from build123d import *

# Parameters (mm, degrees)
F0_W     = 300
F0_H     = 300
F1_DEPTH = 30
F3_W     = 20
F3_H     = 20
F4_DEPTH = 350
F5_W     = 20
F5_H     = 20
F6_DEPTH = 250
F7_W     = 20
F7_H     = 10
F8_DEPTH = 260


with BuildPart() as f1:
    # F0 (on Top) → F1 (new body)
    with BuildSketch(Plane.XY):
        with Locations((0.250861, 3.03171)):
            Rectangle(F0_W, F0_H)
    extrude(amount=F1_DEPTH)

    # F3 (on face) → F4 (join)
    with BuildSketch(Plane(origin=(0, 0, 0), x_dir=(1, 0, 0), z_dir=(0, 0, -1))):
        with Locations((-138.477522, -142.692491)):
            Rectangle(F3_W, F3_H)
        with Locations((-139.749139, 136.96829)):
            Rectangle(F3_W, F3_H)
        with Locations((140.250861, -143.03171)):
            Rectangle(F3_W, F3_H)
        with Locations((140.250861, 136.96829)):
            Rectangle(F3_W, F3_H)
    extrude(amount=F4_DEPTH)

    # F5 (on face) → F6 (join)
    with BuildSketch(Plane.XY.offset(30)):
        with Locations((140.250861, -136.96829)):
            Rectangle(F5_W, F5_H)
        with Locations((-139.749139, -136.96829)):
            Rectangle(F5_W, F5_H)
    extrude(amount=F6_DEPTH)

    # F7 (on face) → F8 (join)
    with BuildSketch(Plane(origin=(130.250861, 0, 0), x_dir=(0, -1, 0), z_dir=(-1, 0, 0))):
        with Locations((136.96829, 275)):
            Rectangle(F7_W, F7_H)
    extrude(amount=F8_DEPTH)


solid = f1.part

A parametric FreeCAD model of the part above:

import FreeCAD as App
import Part
import Sketcher
from FreeCAD import Vector


def add_polygon(sketch, points):
    """Adds a closed chain of lines whose ends are joined by coincident constraints."""
    first, n = sketch.GeometryCount, len(points)
    for a, b in zip(points, points[1:] + points[:1]):
        sketch.addGeometry(Part.LineSegment(App.Vector(*a, 0), App.Vector(*b, 0)), False)
    for i in range(n):
        sketch.addConstraint(Sketcher.Constraint("Coincident", first + i, 2, first + (i + 1) % n, 1))

doc = App.newDocument("Part")
body = doc.addObject("PartDesign::Body", "Body")

# Sketch on XY plane
sketch1 = body.newObject("Sketcher::SketchObject", "Sketch")
sketch1.AttachmentSupport = (doc.getObject("XY_Plane"), [""])
sketch1.MapMode = "FlatFace"
add_polygon(sketch1, [(-150, 153), (-150, -147), (150, -147), (150, 153)])  # lines 0-3
sketch1.addConstraint([
    Sketcher.Constraint("Vertical", 0),
    Sketcher.Constraint("Horizontal", 1),
    Sketcher.Constraint("Vertical", 2),
    Sketcher.Constraint("Horizontal", 3),
    Sketcher.Constraint("Equal", 3, 0),
    Sketcher.Constraint("DistanceX", 1, 1, 1, 2, 300.0),
    Sketcher.Constraint("DistanceX", 0, 2, -1, 1, 149.749139),
    Sketcher.Constraint("DistanceY", 0, 2, -1, 1, 146.96829),
])
pad1 = body.newObject("PartDesign::Pad", "Pad")
pad1.Profile = sketch1
pad1.Length = 30

# Sketch on XY plane
sketch2 = body.newObject("Sketcher::SketchObject", "Sketch001")
sketch2.AttachmentSupport = (doc.getObject("XY_Plane"), [""])
sketch2.MapMode = "FlatFace"
add_polygon(sketch2, [(-148, 133), (-148, 153), (-128, 153), (-128, 133)])  # lines 0-3
add_polygon(sketch2, [(-150, -147), (-150, -127), (-130, -127), (-130, -147)])  # lines 4-7
add_polygon(sketch2, [(130, 133), (130, 153), (150, 153), (150, 133)])  # lines 8-11
add_polygon(sketch2, [(130, -147), (130, -127), (150, -127), (150, -147)])  # lines 12-15
sketch2.addConstraint([
    Sketcher.Constraint("Vertical", 0),
    Sketcher.Constraint("Horizontal", 1),
    Sketcher.Constraint("Vertical", 2),
    Sketcher.Constraint("Horizontal", 3),
    Sketcher.Constraint("Vertical", 4),
    Sketcher.Constraint("Horizontal", 5),
    Sketcher.Constraint("Vertical", 6),
    Sketcher.Constraint("Horizontal", 7),
    Sketcher.Constraint("Vertical", 8),
    Sketcher.Constraint("Horizontal", 9),
    Sketcher.Constraint("Vertical", 10),
    Sketcher.Constraint("Horizontal", 11),
    Sketcher.Constraint("Vertical", 12),
    Sketcher.Constraint("Horizontal", 13),
    Sketcher.Constraint("Vertical", 14),
    Sketcher.Constraint("Horizontal", 15),
    Sketcher.Constraint("Horizontal", 5, 2, 12, 2),
    Sketcher.Constraint("Horizontal", 7, 2, 14, 2),
    Sketcher.Constraint("Vertical", 11, 2, 12, 2),
    Sketcher.Constraint("Vertical", 10, 2, 13, 2),
    Sketcher.Constraint("Equal", 3, 5),
    Sketcher.Constraint("Equal", 7, 9),
    Sketcher.Constraint("Equal", 15, 0),
    Sketcher.Constraint("Equal", 2, 4),
    Sketcher.Constraint("Equal", 6, 8),
    Sketcher.Constraint("DistanceX", 1, 1, 1, 2, 20.0),
    Sketcher.Constraint("DistanceX", 5, 2, 8, 2, 260.0),
    Sketcher.Constraint("DistanceY", 5, 2, 8, 2, 280.0),
    Sketcher.Constraint("DistanceX", 0, 2, -1, 1, 148.477522),
    Sketcher.Constraint("DistanceY", -1, 1, 0, 2, 152.692491),
    Sketcher.Constraint("DistanceX", 4, 2, -1, 1, 149.749139),
    Sketcher.Constraint("DistanceY", 4, 2, -1, 1, 126.96829),
])
pad2 = body.newObject("PartDesign::Pad", "Pad001")
pad2.Profile = sketch2
pad2.Length = 350
pad2.Reversed = True

# Sketch on XY plane
sketch3 = body.newObject("Sketcher::SketchObject", "Sketch002")
sketch3.AttachmentSupport = (doc.getObject("XY_Plane"), [""])
sketch3.MapMode = "FlatFace"
sketch3.AttachmentOffset = App.Placement(Vector(0, 0, 30), App.Rotation())
add_polygon(sketch3, [(130, -127), (130, -147), (150, -147), (150, -127)])  # lines 0-3
add_polygon(sketch3, [(-150, -127), (-150, -147), (-130, -147), (-130, -127)])  # lines 4-7
sketch3.addConstraint([
    Sketcher.Constraint("Vertical", 0),
    Sketcher.Constraint("Horizontal", 1),
    Sketcher.Constraint("Vertical", 2),
    Sketcher.Constraint("Horizontal", 3),
    Sketcher.Constraint("Vertical", 4),
    Sketcher.Constraint("Horizontal", 5),
    Sketcher.Constraint("Vertical", 6),
    Sketcher.Constraint("Horizontal", 7),
    Sketcher.Constraint("Horizontal", 1, 2, 4, 2),
    Sketcher.Constraint("Horizontal", 3, 2, 6, 2),
    Sketcher.Constraint("Equal", 3, 5),
    Sketcher.Constraint("Equal", 7, 0),
    Sketcher.Constraint("DistanceX", 1, 1, 1, 2, 20.0),
    Sketcher.Constraint("DistanceX", 4, 2, 0, 2, 280.0),
    Sketcher.Constraint("DistanceX", -1, 1, 0, 2, 130.250861),
    Sketcher.Constraint("DistanceY", 0, 2, -1, 1, 146.96829),
])
pad3 = body.newObject("PartDesign::Pad", "Pad002")
pad3.Profile = sketch3
pad3.Length = 250

# Sketch on YZ plane
sketch4 = body.newObject("Sketcher::SketchObject", "Sketch003")
sketch4.AttachmentSupport = (doc.getObject("YZ_Plane"), [""])
sketch4.MapMode = "FlatFace"
sketch4.AttachmentOffset = App.Placement(Vector(0, 0, 130.250861), App.Rotation())
add_polygon(sketch4, [(-127, 280), (-127, 270), (-147, 270), (-147, 280)])  # lines 0-3
sketch4.addConstraint([
    Sketcher.Constraint("Vertical", 0),
    Sketcher.Constraint("Horizontal", 1),
    Sketcher.Constraint("Vertical", 2),
    Sketcher.Constraint("Horizontal", 3),
    Sketcher.Constraint("DistanceX", 1, 2, 1, 1, 20.0),
    Sketcher.Constraint("DistanceY", 0, 2, 0, 1, 10.0),
    Sketcher.Constraint("DistanceY", -1, 1, 0, 2, 270.0),
    Sketcher.Constraint("DistanceX", 0, 2, -1, 1, 126.96829),
])
pad4 = body.newObject("PartDesign::Pad", "Pad003")
pad4.Profile = sketch4
pad4.Length = 260
pad4.Reversed = True

doc.recompute()
